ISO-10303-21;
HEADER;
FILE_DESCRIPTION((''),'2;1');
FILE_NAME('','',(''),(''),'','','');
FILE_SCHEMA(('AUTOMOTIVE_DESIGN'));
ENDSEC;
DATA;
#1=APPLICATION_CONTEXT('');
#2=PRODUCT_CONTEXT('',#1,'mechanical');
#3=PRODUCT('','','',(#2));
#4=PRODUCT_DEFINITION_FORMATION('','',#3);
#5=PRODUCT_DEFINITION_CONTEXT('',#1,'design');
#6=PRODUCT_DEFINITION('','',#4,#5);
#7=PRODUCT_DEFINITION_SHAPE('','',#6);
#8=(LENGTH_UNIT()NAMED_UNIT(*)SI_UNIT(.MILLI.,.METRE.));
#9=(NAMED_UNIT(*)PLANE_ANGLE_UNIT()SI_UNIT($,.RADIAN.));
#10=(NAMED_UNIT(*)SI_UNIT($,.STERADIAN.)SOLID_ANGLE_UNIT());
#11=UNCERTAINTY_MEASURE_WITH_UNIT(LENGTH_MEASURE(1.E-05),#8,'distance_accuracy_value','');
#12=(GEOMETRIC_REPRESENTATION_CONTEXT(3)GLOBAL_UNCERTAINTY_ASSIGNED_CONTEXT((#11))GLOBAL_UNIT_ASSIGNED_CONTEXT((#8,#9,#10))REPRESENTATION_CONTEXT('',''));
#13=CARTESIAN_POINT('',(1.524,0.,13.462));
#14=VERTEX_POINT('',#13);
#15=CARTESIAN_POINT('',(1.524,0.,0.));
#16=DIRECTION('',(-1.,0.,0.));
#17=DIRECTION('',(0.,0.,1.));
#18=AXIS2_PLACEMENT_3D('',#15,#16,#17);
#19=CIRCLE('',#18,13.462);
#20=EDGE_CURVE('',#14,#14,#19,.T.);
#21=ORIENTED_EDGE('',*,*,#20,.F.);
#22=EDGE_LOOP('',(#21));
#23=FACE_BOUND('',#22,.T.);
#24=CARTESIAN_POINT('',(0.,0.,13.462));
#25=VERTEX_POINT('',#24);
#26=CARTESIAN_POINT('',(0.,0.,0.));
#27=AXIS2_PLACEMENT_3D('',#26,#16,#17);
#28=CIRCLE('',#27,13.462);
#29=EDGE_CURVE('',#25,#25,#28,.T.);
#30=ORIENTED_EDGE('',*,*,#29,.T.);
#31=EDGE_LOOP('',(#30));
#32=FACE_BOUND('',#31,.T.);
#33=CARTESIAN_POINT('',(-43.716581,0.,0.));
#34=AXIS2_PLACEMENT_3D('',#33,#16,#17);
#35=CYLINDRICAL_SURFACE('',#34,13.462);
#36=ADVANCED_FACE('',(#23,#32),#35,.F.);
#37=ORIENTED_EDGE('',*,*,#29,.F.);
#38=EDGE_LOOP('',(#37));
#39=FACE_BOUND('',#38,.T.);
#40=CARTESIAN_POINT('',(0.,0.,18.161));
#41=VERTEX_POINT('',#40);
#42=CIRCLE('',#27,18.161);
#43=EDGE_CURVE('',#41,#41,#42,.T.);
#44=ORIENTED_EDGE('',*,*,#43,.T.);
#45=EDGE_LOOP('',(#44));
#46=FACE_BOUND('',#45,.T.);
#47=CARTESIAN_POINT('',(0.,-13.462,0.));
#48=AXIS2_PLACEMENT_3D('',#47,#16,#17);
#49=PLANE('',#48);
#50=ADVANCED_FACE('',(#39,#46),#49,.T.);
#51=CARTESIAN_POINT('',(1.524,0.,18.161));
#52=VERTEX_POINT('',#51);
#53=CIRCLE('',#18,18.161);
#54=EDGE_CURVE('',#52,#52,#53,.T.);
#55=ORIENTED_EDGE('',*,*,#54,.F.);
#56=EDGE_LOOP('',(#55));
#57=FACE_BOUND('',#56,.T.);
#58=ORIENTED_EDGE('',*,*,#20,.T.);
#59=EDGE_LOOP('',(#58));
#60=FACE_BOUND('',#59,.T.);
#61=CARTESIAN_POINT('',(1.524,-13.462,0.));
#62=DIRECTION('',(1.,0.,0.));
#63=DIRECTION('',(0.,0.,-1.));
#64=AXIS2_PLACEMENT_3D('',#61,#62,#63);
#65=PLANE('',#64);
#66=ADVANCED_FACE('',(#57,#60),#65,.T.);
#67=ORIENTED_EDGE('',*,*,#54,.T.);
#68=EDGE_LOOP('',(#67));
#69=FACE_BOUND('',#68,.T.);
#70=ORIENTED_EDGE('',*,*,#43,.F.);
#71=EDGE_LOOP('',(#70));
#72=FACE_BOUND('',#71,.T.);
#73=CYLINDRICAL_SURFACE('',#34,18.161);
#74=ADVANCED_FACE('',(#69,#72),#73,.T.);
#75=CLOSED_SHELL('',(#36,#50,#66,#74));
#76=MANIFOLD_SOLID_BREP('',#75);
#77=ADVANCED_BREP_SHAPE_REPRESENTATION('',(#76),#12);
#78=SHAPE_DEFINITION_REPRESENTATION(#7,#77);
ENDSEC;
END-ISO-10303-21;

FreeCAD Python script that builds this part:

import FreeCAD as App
import Part
import Sketcher

V = App.Vector
Q = App.Units.Quantity

doc = App.newDocument("Part")
body = doc.addObject("PartDesign::Body", "Body")

sketch1 = body.newObject("Sketcher::SketchObject", "Sketch")
sketch1.AttachmentSupport = (doc.getObject("XY_Plane"), [""])
sketch1.MapMode = "FlatFace"
sketch1.addGeometry([
    Part.LineSegment(V(0, -13.5, 0), V(0, -18.2, 0)),
    Part.LineSegment(V(0, -18.2, 0), V(1.5, -18.2, 0)),
    Part.LineSegment(V(1.5, -18.2, 0), V(1.5, -13.5, 0)),
    Part.LineSegment(V(1.5, -13.5, 0), V(0, -13.5, 0)),
], False)
sketch1.addConstraint([
    Sketcher.Constraint("Coincident", 0, 2, 1, 1),
    Sketcher.Constraint("Coincident", 1, 2, 2, 1),
    Sketcher.Constraint("Coincident", 2, 2, 3, 1),
    Sketcher.Constraint("Coincident", 3, 2, 0, 1),
    Sketcher.Constraint("Vertical", 0),
    Sketcher.Constraint("Horizontal", 1),
    Sketcher.Constraint("Vertical", 2),
    Sketcher.Constraint("Horizontal", 3),
    Sketcher.Constraint("PointOnObject", 0, 2, -2),
    Sketcher.Constraint("DistanceX", 1, 1, 1, 2, Q("0.06 in")),
    Sketcher.Constraint("DistanceY", 0, 2, 0, 1, Q("0.185 in")),
    Sketcher.Constraint("DistanceY", 2, 2, -1, 1, Q("0.53 in")),
])
revolution = body.newObject("PartDesign::Revolution", "Revolution")
revolution.Profile = sketch1
revolution.ReferenceAxis = (sketch1, ["H_Axis"])
revolution.Angle = 360

doc.recompute()
